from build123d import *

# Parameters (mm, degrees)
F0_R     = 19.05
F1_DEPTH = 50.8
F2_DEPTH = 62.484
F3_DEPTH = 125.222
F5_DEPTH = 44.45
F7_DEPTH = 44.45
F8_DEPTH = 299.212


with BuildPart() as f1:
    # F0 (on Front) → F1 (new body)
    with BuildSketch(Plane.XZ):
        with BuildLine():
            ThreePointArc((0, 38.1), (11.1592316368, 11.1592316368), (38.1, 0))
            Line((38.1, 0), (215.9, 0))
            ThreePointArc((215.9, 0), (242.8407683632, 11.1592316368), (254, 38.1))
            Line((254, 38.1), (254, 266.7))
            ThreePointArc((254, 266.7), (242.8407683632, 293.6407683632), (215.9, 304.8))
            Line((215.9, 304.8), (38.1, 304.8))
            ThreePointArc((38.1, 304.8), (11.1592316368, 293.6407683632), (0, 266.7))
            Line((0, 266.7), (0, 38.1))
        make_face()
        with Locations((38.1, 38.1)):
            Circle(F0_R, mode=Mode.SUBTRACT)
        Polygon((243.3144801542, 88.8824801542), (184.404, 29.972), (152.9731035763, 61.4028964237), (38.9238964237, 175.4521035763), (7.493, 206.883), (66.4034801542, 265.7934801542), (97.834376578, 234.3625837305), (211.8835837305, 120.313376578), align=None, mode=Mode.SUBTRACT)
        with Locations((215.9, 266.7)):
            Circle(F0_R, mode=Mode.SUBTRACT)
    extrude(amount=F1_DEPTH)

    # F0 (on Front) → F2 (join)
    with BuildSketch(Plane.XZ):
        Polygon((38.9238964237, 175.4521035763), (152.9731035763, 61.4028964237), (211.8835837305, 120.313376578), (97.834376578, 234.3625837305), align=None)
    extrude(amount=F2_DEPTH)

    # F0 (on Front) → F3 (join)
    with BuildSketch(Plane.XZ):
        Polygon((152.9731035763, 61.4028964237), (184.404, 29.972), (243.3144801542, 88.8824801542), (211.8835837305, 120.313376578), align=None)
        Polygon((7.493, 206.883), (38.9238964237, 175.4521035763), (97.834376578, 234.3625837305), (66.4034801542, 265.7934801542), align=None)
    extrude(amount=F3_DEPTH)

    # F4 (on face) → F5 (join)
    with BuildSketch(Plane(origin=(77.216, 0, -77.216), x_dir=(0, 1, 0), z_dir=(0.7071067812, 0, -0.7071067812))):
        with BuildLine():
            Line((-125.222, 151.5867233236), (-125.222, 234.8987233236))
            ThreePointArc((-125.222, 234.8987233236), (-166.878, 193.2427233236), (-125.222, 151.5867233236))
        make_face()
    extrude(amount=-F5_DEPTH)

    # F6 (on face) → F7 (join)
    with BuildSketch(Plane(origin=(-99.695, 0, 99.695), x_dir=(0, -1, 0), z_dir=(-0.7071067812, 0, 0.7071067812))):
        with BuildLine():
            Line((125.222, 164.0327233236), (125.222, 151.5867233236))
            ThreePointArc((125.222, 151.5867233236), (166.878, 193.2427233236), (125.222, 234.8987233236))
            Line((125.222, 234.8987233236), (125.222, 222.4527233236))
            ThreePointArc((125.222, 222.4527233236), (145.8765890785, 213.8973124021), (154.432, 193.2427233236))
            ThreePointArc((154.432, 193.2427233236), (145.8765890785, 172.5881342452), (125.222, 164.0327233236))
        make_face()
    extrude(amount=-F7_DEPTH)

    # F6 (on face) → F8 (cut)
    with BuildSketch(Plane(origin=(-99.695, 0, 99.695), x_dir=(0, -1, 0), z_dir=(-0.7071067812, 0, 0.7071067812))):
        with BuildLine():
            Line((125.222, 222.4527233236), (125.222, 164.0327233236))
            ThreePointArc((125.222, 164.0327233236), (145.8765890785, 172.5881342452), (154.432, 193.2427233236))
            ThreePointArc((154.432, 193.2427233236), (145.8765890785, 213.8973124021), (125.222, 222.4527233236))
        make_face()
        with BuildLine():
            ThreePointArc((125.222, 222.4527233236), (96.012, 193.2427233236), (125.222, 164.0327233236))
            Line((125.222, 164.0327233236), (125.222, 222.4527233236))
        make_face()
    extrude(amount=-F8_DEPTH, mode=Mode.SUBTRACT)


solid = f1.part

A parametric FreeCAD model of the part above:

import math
import FreeCAD as App
import Part
import Sketcher

V = App.Vector
Q = App.Units.Quantity

doc = App.newDocument("Part")
params = doc.addObject("Spreadsheet::Sheet", "Params")
for row, (alias, value) in enumerate([
    ("sketch1_diameter", "1.5 in"),
    ("sketch1_radius", "1.5 in"),
    ("sketch1_width", "7 in"),
    ("sketch1_height", "9 in"),
    ("sketch1_length", "1.75 in"),
    ("pad1_length", "2 in"),
    ("sketch2_length", "3.28 in"),
    ("pad2_length", "2.46 in"),
    ("sketch3_length", "1.75 in"),
    ("sketch3_length2", "3.28 in"),
    ("pad3_length", "4.93 in"),
    ("sketch4_radius", "1.64 in"),
    ("pad4_length", "1.75 in"),
    ("sketch5_radius", "1.64 in"),
    ("sketch5_radius2", "1.15 in"),
    ("pad5_length", "1.75 in"),
    ("sketch6_radius", "1.15 in"),
    ("pocket1_length", "11.78 in"),
], start=1):
    params.set(f"A{row}", alias)
    params.set(f"B{row}", "=" + value)
    params.setAlias(f"B{row}", alias)

body = doc.addObject("PartDesign::Body", "Body")

# Sketch on XZ plane
sketch1 = doc.addObject("Sketcher::SketchObject", "Sketch")
body.addObject(sketch1)
sketch1.AttachmentSupport = (doc.XZ_Plane, [""])
sketch1.MapMode = "FlatFace"
sketch1.addGeometry(Part.ArcOfCircle(Part.Circle(V(38, 38, 0), V(0, 0, 1), 38), math.radians(180), math.radians(270)), False)
sketch1.addGeometry(Part.LineSegment(V(38, 0, 0), V(216, 0, 0)), False)
sketch1.addGeometry(Part.ArcOfCircle(Part.Circle(V(216, 38, 0), V(0, 0, 1), 38), math.radians(-90), math.radians(0)), False)
sketch1.addGeometry(Part.LineSegment(V(254, 38, 0), V(254, 267, 0)), False)
sketch1.addGeometry(Part.ArcOfCircle(Part.Circle(V(216, 267, 0), V(0, 0, 1), 38), math.radians(0), math.radians(90)), False)
sketch1.addGeometry(Part.LineSegment(V(216, 305, 0), V(38, 305, 0)), False)
sketch1.addGeometry(Part.ArcOfCircle(Part.Circle(V(38, 267, 0), V(0, 0, 1), 38), math.radians(90), math.radians(180)), False)
sketch1.addGeometry(Part.LineSegment(V(0, 267, 0), V(0, 38, 0)), False)
sketch1.addGeometry(Part.Circle(V(38, 38, 0), V(0, 0, 1), 19), False)
sketch1.addGeometry(Part.LineSegment(V(212, 120, 0), V(243, 89, 0)), False)
sketch1.addGeometry(Part.LineSegment(V(243, 89, 0), V(184, 30, 0)), False)
sketch1.addGeometry(Part.LineSegment(V(184, 30, 0), V(7, 207, 0)), False)
sketch1.addGeometry(Part.LineSegment(V(7, 207, 0), V(66, 266, 0)), False)
sketch1.addGeometry(Part.LineSegment(V(66, 266, 0), V(98, 234, 0)), False)
sketch1.addGeometry(Part.LineSegment(V(98, 234, 0), V(212, 120, 0)), False)
sketch1.addGeometry(Part.Circle(V(216, 267, 0), V(0, 0, 1), 19), False)
sketch1.addConstraint(Sketcher.Constraint("Tangent", 0, 2, 1, 1))
sketch1.addConstraint(Sketcher.Constraint("Tangent", 1, 2, 2, 1))
sketch1.addConstraint(Sketcher.Constraint("Tangent", 2, 2, 3, 1))
sketch1.addConstraint(Sketcher.Constraint("Tangent", 3, 2, 4, 1))
sketch1.addConstraint(Sketcher.Constraint("Tangent", 4, 2, 5, 1))
sketch1.addConstraint(Sketcher.Constraint("Tangent", 5, 2, 6, 1))
sketch1.addConstraint(Sketcher.Constraint("Tangent", 6, 2, 7, 1))
sketch1.addConstraint(Sketcher.Constraint("Tangent", 7, 2, 0, 1))
sketch1.addConstraint(Sketcher.Constraint("Coincident", 9, 2, 10, 1))
sketch1.addConstraint(Sketcher.Constraint("Coincident", 10, 2, 11, 1))
sketch1.addConstraint(Sketcher.Constraint("Coincident", 11, 2, 12, 1))
sketch1.addConstraint(Sketcher.Constraint("Coincident", 12, 2, 13, 1))
sketch1.addConstraint(Sketcher.Constraint("Coincident", 13, 2, 14, 1))
sketch1.addConstraint(Sketcher.Constraint("Coincident", 14, 2, 9, 1))
sketch1.addConstraint(Sketcher.Constraint("Horizontal", 1))
sketch1.addConstraint(Sketcher.Constraint("Vertical", 3))
sketch1.addConstraint(Sketcher.Constraint("Horizontal", 5))
sketch1.addConstraint(Sketcher.Constraint("Vertical", 7))
sketch1.addConstraint(Sketcher.Constraint("Coincident", 8, 3, 0, 3))
sketch1.addConstraint(Sketcher.Constraint("Coincident", 15, 3, 4, 3))
sketch1.addConstraint(Sketcher.Constraint("Equal", 0, 2))
sketch1.addConstraint(Sketcher.Constraint("Equal", 2, 4))
sketch1.addConstraint(Sketcher.Constraint("Equal", 4, 6))
sketch1.addConstraint(Sketcher.Constraint("Equal", 8, 15))
sketch1.addConstraint(Sketcher.Constraint("PointOnObject", 0, 2, -1))
sketch1.addConstraint(Sketcher.Constraint("PointOnObject", 6, 2, -2))
sketch1.addConstraint(Sketcher.Constraint("Perpendicular", 9, 10))
sketch1.addConstraint(Sketcher.Constraint("Perpendicular", 10, 11))
sketch1.addConstraint(Sketcher.Constraint("Perpendicular", 11, 12))
sketch1.addConstraint(Sketcher.Constraint("Perpendicular", 12, 13))
sketch1.addConstraint(Sketcher.Constraint("Parallel", 13, 14))
sketch1.addConstraint(Sketcher.Constraint("Equal", 9, 13))
sketch1.addConstraint(Sketcher.Constraint("Diameter", 8, Q("1.5 in")))
sketch1.addConstraint(Sketcher.Constraint("Radius", 0, Q("1.5 in")))
sketch1.addConstraint(Sketcher.Constraint("DistanceX", 1, 1, 1, 2, Q("7 in")))
sketch1.addConstraint(Sketcher.Constraint("DistanceY", 3, 1, 3, 2, Q("9 in")))
sketch1.addConstraint(Sketcher.Constraint("Angle", 9, Q("-45 deg")))
sketch1.addConstraint(Sketcher.Constraint("Distance", 9, Q("1.75 in")))
sketch1.addConstraint(Sketcher.Constraint("Distance", 10, Q("3.28 in")))
sketch1.addConstraint(Sketcher.Constraint("DistanceX", -1, 1, 10, 2, Q("7.26 in")))
sketch1.addConstraint(Sketcher.Constraint("DistanceY", -1, 1, 10, 2, Q("1.18 in")))
sketch1.addConstraint(Sketcher.Constraint("DistanceX", -1, 1, 11, 2, Q("0.295 in")))
sketch1.setExpression("Constraints[32]", "Params.sketch1_diameter")
sketch1.setExpression("Constraints[33]", "Params.sketch1_radius")
sketch1.setExpression("Constraints[34]", "Params.sketch1_width")
sketch1.setExpression("Constraints[35]", "Params.sketch1_height")
sketch1.setExpression("Constraints[37]", "Params.sketch1_length")
pad1 = doc.addObject("PartDesign::Pad", "Pad")
body.addObject(pad1)
pad1.Profile = sketch1
pad1.setExpression("Length", "Params.pad1_length")

# Sketch on XZ plane
sketch2 = doc.addObject("Sketcher::SketchObject", "Sketch001")
body.addObject(sketch2)
sketch2.AttachmentSupport = (doc.XZ_Plane, [""])
sketch2.MapMode = "FlatFace"
sketch2.addGeometry(Part.LineSegment(V(39, 175, 0), V(153, 61, 0)), False)
sketch2.addGeometry(Part.LineSegment(V(153, 61, 0), V(212, 120, 0)), False)
sketch2.addGeometry(Part.LineSegment(V(212, 120, 0), V(98, 234, 0)), False)
sketch2.addGeometry(Part.LineSegment(V(98, 234, 0), V(39, 175, 0)), False)
sketch2.addConstraint(Sketcher.Constraint("Coincident", 0, 2, 1, 1))
sketch2.addConstraint(Sketcher.Constraint("Coincident", 1, 2, 2, 1))
sketch2.addConstraint(Sketcher.Constraint("Coincident", 2, 2, 3, 1))
sketch2.addConstraint(Sketcher.Constraint("Coincident", 3, 2, 0, 1))
sketch2.addConstraint(Sketcher.Constraint("Perpendicular", 0, 1))
sketch2.addConstraint(Sketcher.Constraint("Perpendicular", 1, 2))
sketch2.addConstraint(Sketcher.Constraint("Perpendicular", 2, 3))
sketch2.addConstraint(Sketcher.Constraint("Angle", 0, Q("-45 deg")))
sketch2.addConstraint(Sketcher.Constraint("Distance", 1, Q("3.28 in")))
sketch2.addConstraint(Sketcher.Constraint("Distance", 0, 161.289936))
sketch2.addConstraint(Sketcher.Constraint("DistanceX", -1, 1, 0, 2, 152.973104))
sketch2.addConstraint(Sketcher.Constraint("DistanceY", -1, 1, 0, 2, 61.402896))
sketch2.setExpression("Constraints[8]", "Params.sketch2_length")
pad2 = doc.addObject("PartDesign::Pad", "Pad001")
body.addObject(pad2)
pad2.Profile = sketch2
pad2.setExpression("Length", "Params.pad2_length")

# Sketch on XZ plane
sketch3 = doc.addObject("Sketcher::SketchObject", "Sketch002")
body.addObject(sketch3)
sketch3.AttachmentSupport = (doc.XZ_Plane, [""])
sketch3.MapMode = "FlatFace"
sketch3.addGeometry(Part.LineSegment(V(153, 61, 0), V(184, 30, 0)), False)
sketch3.addGeometry(Part.LineSegment(V(184, 30, 0), V(243, 89, 0)), False)
sketch3.addGeometry(Part.LineSegment(V(243, 89, 0), V(212, 120, 0)), False)
sketch3.addGeometry(Part.LineSegment(V(212, 120, 0), V(153, 61, 0)), False)
sketch3.addGeometry(Part.LineSegment(V(7, 207, 0), V(39, 175, 0)), False)
sketch3.addGeometry(Part.LineSegment(V(39, 175, 0), V(98, 234, 0)), False)
sketch3.addGeometry(Part.LineSegment(V(98, 234, 0), V(66, 266, 0)), False)
sketch3.addGeometry(Part.LineSegment(V(66, 266, 0), V(7, 207, 0)), False)
sketch3.addConstraint(Sketcher.Constraint("Coincident", 0, 2, 1, 1))
sketch3.addConstraint(Sketcher.Constraint("Coincident", 1, 2, 2, 1))
sketch3.addConstraint(Sketcher.Constraint("Coincident", 2, 2, 3, 1))
sketch3.addConstraint(Sketcher.Constraint("Coincident", 3, 2, 0, 1))
sketch3.addConstraint(Sketcher.Constraint("Coincident", 4, 2, 5, 1))
sketch3.addConstraint(Sketcher.Constraint("Coincident", 5, 2, 6, 1))
sketch3.addConstraint(Sketcher.Constraint("Coincident", 6, 2, 7, 1))
sketch3.addConstraint(Sketcher.Constraint("Coincident", 7, 2, 4, 1))
sketch3.addConstraint(Sketcher.Constraint("Perpendicular", 0, 1))
sketch3.addConstraint(Sketcher.Constraint("Perpendicular", 1, 2))
sketch3.addConstraint(Sketcher.Constraint("Perpendicular", 2, 3))
sketch3.addConstraint(Sketcher.Constraint("Perpendicular", 3, 4))
sketch3.addConstraint(Sketcher.Constraint("Perpendicular", 4, 5))
sketch3.addConstraint(Sketcher.Constraint("Perpendicular", 5, 6))
sketch3.addConstraint(Sketcher.Constraint("Perpendicular", 6, 7))
sketch3.addConstraint(Sketcher.Constraint("Equal", 2, 4))
sketch3.addConstraint(Sketcher.Constraint("Equal", 3, 5))
sketch3.addConstraint(Sketcher.Constraint("Angle", 0, Q("-45 deg")))
sketch3.addConstraint(Sketcher.Constraint("Distance", 0, Q("1.75 in")))
sketch3.addConstraint(Sketcher.Constraint("Distance", 1, Q("3.28 in")))
sketch3.addConstraint(Sketcher.Constraint("DistanceX", -1, 1, 0, 2, Q("7.26 in")))
sketch3.addConstraint(Sketcher.Constraint("DistanceY", -1, 1, 0, 2, Q("1.18 in")))
sketch3.addConstraint(Sketcher.Constraint("DistanceX", -1, 1, 7, 2, Q("0.295 in")))
sketch3.addConstraint(Sketcher.Constraint("DistanceY", -1, 1, 7, 2, Q("8.145 in")))
sketch3.setExpression("Constraints[18]", "Params.sketch3_length")
sketch3.setExpression("Constraints[19]", "Params.sketch3_length2")
pad3 = doc.addObject("PartDesign::Pad", "Pad002")
body.addObject(pad3)
pad3.Profile = sketch3
pad3.setExpression("Length", "Params.pad3_length")

# Sketch on an angled plane
sketch4 = doc.addObject("Sketcher::SketchObject", "Sketch003")
body.addObject(sketch4)
sketch4.Placement = App.Placement(V(77.216, 0, -77.216), App.Rotation(V(0, 1, 0), V(0.707106781, 0, 0.707106781), V(0.707106781, 0, -0.707106781), "ZXY"))
sketch4.addGeometry(Part.LineSegment(V(-125, 152, 0), V(-125, 235, 0)), False)
sketch4.addGeometry(Part.ArcOfCircle(Part.Circle(V(-125, 193, 0), V(0, 0, 1), 42), math.radians(90), math.radians(270)), False)
sketch4.addConstraint(Sketcher.Constraint("Coincident", 0, 1, 1, 2))
sketch4.addConstraint(Sketcher.Constraint("Coincident", 1, 1, 0, 2))
sketch4.addConstraint(Sketcher.Constraint("Vertical", 0))
sketch4.addConstraint(Sketcher.Constraint("Vertical", 1, 3, 0, 1))
sketch4.addConstraint(Sketcher.Constraint("Radius", 1, Q("1.64 in")))
sketch4.addConstraint(Sketcher.Constraint("DistanceX", 1, 3, -1, 1, Q("4.93 in")))
sketch4.addConstraint(Sketcher.Constraint("DistanceY", -1, 1, 1, 3, 193.242723))
sketch4.setExpression("Constraints[4]", "Params.sketch4_radius")
pad4 = doc.addObject("PartDesign::Pad", "Pad003")
body.addObject(pad4)
pad4.Profile = sketch4
pad4.setExpression("Length", "Params.pad4_length")
pad4.Reversed = True

# Sketch on an angled plane
sketch5 = doc.addObject("Sketcher::SketchObject", "Sketch004")
body.addObject(sketch5)
sketch5.Placement = App.Placement(V(-99.695, 0, 99.695), App.Rotation(V(0, -1, 0), V(0.707106781, 0, 0.707106781), V(-0.707106781, 0, 0.707106781), "ZXY"))
sketch5.addGeometry(Part.LineSegment(V(125, 164, 0), V(125, 152, 0)), False)
sketch5.addGeometry(Part.ArcOfCircle(Part.Circle(V(125, 193, 0), V(0, 0, 1), 42), math.radians(-90), math.radians(90)), False)
sketch5.addGeometry(Part.LineSegment(V(125, 235, 0), V(125, 222, 0)), False)
sketch5.addGeometry(Part.ArcOfCircle(Part.Circle(V(125, 193, 0), V(0, 0, 1), 29), math.radians(0), math.radians(90)), False)
sketch5.addGeometry(Part.ArcOfCircle(Part.Circle(V(125, 193, 0), V(0, 0, 1), 29), math.radians(-90), math.radians(0)), False)
sketch5.addConstraint(Sketcher.Constraint("Coincident", 0, 2, 1, 1))
sketch5.addConstraint(Sketcher.Constraint("Coincident", 1, 2, 2, 1))
sketch5.addConstraint(Sketcher.Constraint("Coincident", 2, 2, 3, 2))
sketch5.addConstraint(Sketcher.Constraint("Tangent", 3, 1, 4, 2))
sketch5.addConstraint(Sketcher.Constraint("Coincident", 4, 1, 0, 1))
sketch5.addConstraint(Sketcher.Constraint("Vertical", 0))
sketch5.addConstraint(Sketcher.Constraint("Vertical", 2))
sketch5.addConstraint(Sketcher.Constraint("Coincident", 3, 3, 1, 3))
sketch5.addConstraint(Sketcher.Constraint("Equal", 3, 4))
sketch5.addConstraint(Sketcher.Constraint("Horizontal", 4, 3, 3, 1))
sketch5.addConstraint(Sketcher.Constraint("Vertical", 4, 3, 0, 2))
sketch5.addConstraint(Sketcher.Constraint("Vertical", 0, 2, 1, 2))
sketch5.addConstraint(Sketcher.Constraint("Radius", 1, Q("1.64 in")))
sketch5.addConstraint(Sketcher.Constraint("Radius", 3, Q("1.15 in")))
sketch5.addConstraint(Sketcher.Constraint("DistanceX", -1, 1, 1, 3, Q("4.93 in")))
sketch5.addConstraint(Sketcher.Constraint("DistanceY", -1, 1, 1, 3, 193.242723))
sketch5.setExpression("Constraints[12]", "Params.sketch5_radius")
sketch5.setExpression("Constraints[13]", "Params.sketch5_radius2")
pad5 = doc.addObject("PartDesign::Pad", "Pad004")
body.addObject(pad5)
pad5.Profile = sketch5
pad5.setExpression("Length", "Params.pad5_length")
pad5.Reversed = True

# Sketch on an angled plane
sketch6 = doc.addObject("Sketcher::SketchObject", "Sketch005")
body.addObject(sketch6)
sketch6.Placement = App.Placement(V(-99.695, 0, 99.695), App.Rotation(V(0, -1, 0), V(0.707106781, 0, 0.707106781), V(-0.707106781, 0, 0.707106781), "ZXY"))
sketch6.addGeometry(Part.ArcOfCircle(Part.Circle(V(125, 193, 0), V(0, 0, 1), 29), math.radians(-90), math.radians(0)), False)
sketch6.addGeometry(Part.ArcOfCircle(Part.Circle(V(125, 193, 0), V(0, 0, 1), 29), math.radians(0), math.radians(90)), False)
sketch6.addGeometry(Part.ArcOfCircle(Part.Circle(V(125, 193, 0), V(0, 0, 1), 29), math.radians(90), math.radians(270)), False)
sketch6.addConstraint(Sketcher.Constraint("Tangent", 0, 2, 1, 1))
sketch6.addConstraint(Sketcher.Constraint("Tangent", 1, 2, 2, 1))
sketch6.addConstraint(Sketcher.Constraint("Tangent", 2, 2, 0, 1))
sketch6.addConstraint(Sketcher.Constraint("Horizontal", 2, 3, 0, 2))
sketch6.addConstraint(Sketcher.Constraint("Vertical", 2, 3, 1, 2))
sketch6.addConstraint(Sketcher.Constraint("Vertical", 1, 2, 2, 2))
sketch6.addConstraint(Sketcher.Constraint("Radius", 0, Q("1.15 in")))
sketch6.addConstraint(Sketcher.Constraint("DistanceX", -1, 1, 0, 3, Q("4.93 in")))
sketch6.addConstraint(Sketcher.Constraint("DistanceY", -1, 1, 0, 3, 193.242723))
sketch6.setExpression("Constraints[6]", "Params.sketch6_radius")
pocket1 = doc.addObject("PartDesign::Pocket", "Pocket")
body.addObject(pocket1)
pocket1.Profile = sketch6
pocket1.setExpression("Length", "Params.pocket1_length")

doc.recompute()
